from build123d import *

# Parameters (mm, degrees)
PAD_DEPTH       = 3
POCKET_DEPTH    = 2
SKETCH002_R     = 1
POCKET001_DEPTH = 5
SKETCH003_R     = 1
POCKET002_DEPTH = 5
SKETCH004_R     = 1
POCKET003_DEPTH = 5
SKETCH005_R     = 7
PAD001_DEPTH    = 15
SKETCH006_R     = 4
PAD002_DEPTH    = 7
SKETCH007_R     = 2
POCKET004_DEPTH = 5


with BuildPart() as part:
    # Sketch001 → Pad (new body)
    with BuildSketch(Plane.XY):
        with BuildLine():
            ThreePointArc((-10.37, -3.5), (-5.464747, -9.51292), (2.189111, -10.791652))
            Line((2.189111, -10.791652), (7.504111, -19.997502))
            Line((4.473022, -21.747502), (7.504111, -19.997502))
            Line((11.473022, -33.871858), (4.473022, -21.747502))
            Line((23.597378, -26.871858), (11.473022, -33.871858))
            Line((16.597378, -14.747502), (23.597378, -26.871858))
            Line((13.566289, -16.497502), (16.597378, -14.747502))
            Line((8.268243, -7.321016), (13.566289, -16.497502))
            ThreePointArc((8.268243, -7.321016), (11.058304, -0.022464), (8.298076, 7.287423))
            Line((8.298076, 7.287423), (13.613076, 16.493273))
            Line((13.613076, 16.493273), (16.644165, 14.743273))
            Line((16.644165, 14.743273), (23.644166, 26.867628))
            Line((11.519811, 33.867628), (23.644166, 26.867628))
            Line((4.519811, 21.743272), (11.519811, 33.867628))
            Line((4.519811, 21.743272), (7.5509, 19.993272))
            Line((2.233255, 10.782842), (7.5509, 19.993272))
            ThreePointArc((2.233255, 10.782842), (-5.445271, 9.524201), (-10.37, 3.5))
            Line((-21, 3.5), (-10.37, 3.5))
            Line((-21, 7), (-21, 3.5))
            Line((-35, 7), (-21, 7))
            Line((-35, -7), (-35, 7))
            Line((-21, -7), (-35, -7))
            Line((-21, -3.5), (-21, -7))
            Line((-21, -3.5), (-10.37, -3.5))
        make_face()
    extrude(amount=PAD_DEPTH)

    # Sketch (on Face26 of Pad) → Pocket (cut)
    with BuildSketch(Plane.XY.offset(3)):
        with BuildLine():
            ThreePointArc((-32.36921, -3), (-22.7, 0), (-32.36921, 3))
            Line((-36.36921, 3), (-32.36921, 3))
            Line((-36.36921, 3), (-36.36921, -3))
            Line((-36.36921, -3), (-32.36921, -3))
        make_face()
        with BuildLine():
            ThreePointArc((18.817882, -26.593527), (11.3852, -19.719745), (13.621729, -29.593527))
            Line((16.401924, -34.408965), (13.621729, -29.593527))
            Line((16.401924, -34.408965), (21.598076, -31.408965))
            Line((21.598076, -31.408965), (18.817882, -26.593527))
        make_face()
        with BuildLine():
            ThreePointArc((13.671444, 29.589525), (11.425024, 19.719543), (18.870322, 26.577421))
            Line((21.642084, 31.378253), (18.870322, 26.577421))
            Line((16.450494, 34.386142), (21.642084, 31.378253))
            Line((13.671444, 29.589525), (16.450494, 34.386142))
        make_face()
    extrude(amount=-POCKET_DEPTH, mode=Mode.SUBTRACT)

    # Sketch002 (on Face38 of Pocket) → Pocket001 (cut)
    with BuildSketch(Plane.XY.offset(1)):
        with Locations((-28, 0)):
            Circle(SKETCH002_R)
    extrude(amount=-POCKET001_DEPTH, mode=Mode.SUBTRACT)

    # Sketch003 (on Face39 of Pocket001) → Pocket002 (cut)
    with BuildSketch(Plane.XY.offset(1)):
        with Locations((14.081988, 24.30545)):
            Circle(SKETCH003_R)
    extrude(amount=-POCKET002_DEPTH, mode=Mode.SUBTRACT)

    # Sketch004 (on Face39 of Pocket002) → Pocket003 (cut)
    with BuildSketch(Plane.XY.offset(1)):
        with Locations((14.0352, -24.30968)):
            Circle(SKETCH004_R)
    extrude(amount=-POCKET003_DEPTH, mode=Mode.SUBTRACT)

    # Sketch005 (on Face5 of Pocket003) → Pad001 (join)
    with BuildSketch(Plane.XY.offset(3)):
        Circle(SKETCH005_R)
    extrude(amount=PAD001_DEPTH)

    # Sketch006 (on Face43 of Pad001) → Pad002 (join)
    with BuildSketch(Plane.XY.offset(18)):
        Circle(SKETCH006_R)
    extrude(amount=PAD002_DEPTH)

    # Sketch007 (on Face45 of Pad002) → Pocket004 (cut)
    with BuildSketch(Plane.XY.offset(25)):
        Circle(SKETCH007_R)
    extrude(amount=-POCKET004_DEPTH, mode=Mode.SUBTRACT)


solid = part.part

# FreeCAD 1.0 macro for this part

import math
import FreeCAD as App
import Part
import Sketcher
Q = App.Units.Quantity

doc = App.newDocument("Part")
body = doc.addObject("PartDesign::Body", "Body")

sketch1 = doc.addObject("Sketcher::SketchObject", "Sketch")
body.addObject(sketch1)
sketch1.AttachmentSupport = (doc.XY_Plane, [""])
sketch1.MapMode = "FlatFace"
sketch1.addGeometry(Part.ArcOfCircle(Part.Circle(App.Vector(0.1, 0, 0), App.Vector(0, 0, 1), 11), math.radians(-161), math.radians(-79)), False)
sketch1.addGeometry(Part.LineSegment(App.Vector(2.2, -10.8, 0), App.Vector(7.5, -20, 0)), False)
sketch1.addGeometry(Part.LineSegment(App.Vector(7.5, -20, 0), App.Vector(4.5, -21.7, 0)), False)
sketch1.addGeometry(Part.LineSegment(App.Vector(4.5, -21.7, 0), App.Vector(11.5, -33.9, 0)), False)
sketch1.addGeometry(Part.LineSegment(App.Vector(11.5, -33.9, 0), App.Vector(23.6, -26.9, 0)), False)
sketch1.addGeometry(Part.LineSegment(App.Vector(23.6, -26.9, 0), App.Vector(16.6, -14.7, 0)), False)
sketch1.addGeometry(Part.LineSegment(App.Vector(16.6, -14.7, 0), App.Vector(13.6, -16.5, 0)), False)
sketch1.addGeometry(Part.LineSegment(App.Vector(13.6, -16.5, 0), App.Vector(8.3, -7.3, 0)), False)
sketch1.addGeometry(Part.ArcOfCircle(Part.Circle(App.Vector(0.1, 0, 0), App.Vector(0, 0, 1), 11), math.radians(-42), math.radians(41)), False)
sketch1.addGeometry(Part.LineSegment(App.Vector(8.3, 7.3, 0), App.Vector(13.6, 16.5, 0)), False)
sketch1.addGeometry(Part.LineSegment(App.Vector(13.6, 16.5, 0), App.Vector(16.6, 14.7, 0)), False)
sketch1.addGeometry(Part.LineSegment(App.Vector(16.6, 14.7, 0), App.Vector(23.6, 26.9, 0)), False)
sketch1.addGeometry(Part.LineSegment(App.Vector(23.6, 26.9, 0), App.Vector(11.5, 33.9, 0)), False)
sketch1.addGeometry(Part.LineSegment(App.Vector(11.5, 33.9, 0), App.Vector(4.5, 21.7, 0)), False)
sketch1.addGeometry(Part.LineSegment(App.Vector(4.5, 21.7, 0), App.Vector(7.6, 20, 0)), False)
sketch1.addGeometry(Part.LineSegment(App.Vector(7.6, 20, 0), App.Vector(2.2, 10.8, 0)), False)
sketch1.addGeometry(Part.ArcOfCircle(Part.Circle(App.Vector(0.1, 0, 0), App.Vector(0, 0, 1), 11), math.radians(79), math.radians(161)), False)
sketch1.addGeometry(Part.LineSegment(App.Vector(-10.4, 3.5, 0), App.Vector(-21, 3.5, 0)), False)
sketch1.addGeometry(Part.LineSegment(App.Vector(-21, 3.5, 0), App.Vector(-21, 7, 0)), False)
sketch1.addGeometry(Part.LineSegment(App.Vector(-21, 7, 0), App.Vector(-35, 7, 0)), False)
sketch1.addGeometry(Part.LineSegment(App.Vector(-35, 7, 0), App.Vector(-35, -7, 0)), False)
sketch1.addGeometry(Part.LineSegment(App.Vector(-35, -7, 0), App.Vector(-21, -7, 0)), False)
sketch1.addGeometry(Part.LineSegment(App.Vector(-21, -7, 0), App.Vector(-21, -3.5, 0)), False)
sketch1.addGeometry(Part.LineSegment(App.Vector(-21, -3.5, 0), App.Vector(-10.4, -3.5, 0)), False)
sketch1.addConstraint(Sketcher.Constraint("Coincident", 0, 2, 1, 1))
sketch1.addConstraint(Sketcher.Constraint("Coincident", 1, 2, 2, 1))
sketch1.addConstraint(Sketcher.Constraint("Coincident", 2, 2, 3, 1))
sketch1.addConstraint(Sketcher.Constraint("Coincident", 3, 2, 4, 1))
sketch1.addConstraint(Sketcher.Constraint("Coincident", 4, 2, 5, 1))
sketch1.addConstraint(Sketcher.Constraint("Coincident", 5, 2, 6, 1))
sketch1.addConstraint(Sketcher.Constraint("Coincident", 6, 2, 7, 1))
sketch1.addConstraint(Sketcher.Constraint("Coincident", 7, 2, 8, 1))
sketch1.addConstraint(Sketcher.Constraint("Coincident", 8, 2, 9, 1))
sketch1.addConstraint(Sketcher.Constraint("Coincident", 9, 2, 10, 1))
sketch1.addConstraint(Sketcher.Constraint("Coincident", 10, 2, 11, 1))
sketch1.addConstraint(Sketcher.Constraint("Coincident", 11, 2, 12, 1))
sketch1.addConstraint(Sketcher.Constraint("Coincident", 12, 2, 13, 1))
sketch1.addConstraint(Sketcher.Constraint("Coincident", 13, 2, 14, 1))
sketch1.addConstraint(Sketcher.Constraint("Coincident", 14, 2, 15, 1))
sketch1.addConstraint(Sketcher.Constraint("Coincident", 15, 2, 16, 1))
sketch1.addConstraint(Sketcher.Constraint("Coincident", 16, 2, 17, 1))
sketch1.addConstraint(Sketcher.Constraint("Coincident", 17, 2, 18, 1))
sketch1.addConstraint(Sketcher.Constraint("Coincident", 18, 2, 19, 1))
sketch1.addConstraint(Sketcher.Constraint("Coincident", 19, 2, 20, 1))
sketch1.addConstraint(Sketcher.Constraint("Coincident", 20, 2, 21, 1))
sketch1.addConstraint(Sketcher.Constraint("Coincident", 21, 2, 22, 1))
sketch1.addConstraint(Sketcher.Constraint("Coincident", 22, 2, 23, 1))
sketch1.addConstraint(Sketcher.Constraint("Coincident", 23, 2, 0, 1))
sketch1.addConstraint(Sketcher.Constraint("Horizontal", 17))
sketch1.addConstraint(Sketcher.Constraint("Vertical", 18))
sketch1.addConstraint(Sketcher.Constraint("Horizontal", 19))
sketch1.addConstraint(Sketcher.Constraint("Vertical", 20))
sketch1.addConstraint(Sketcher.Constraint("Horizontal", 21))
sketch1.addConstraint(Sketcher.Constraint("Vertical", 22))
sketch1.addConstraint(Sketcher.Constraint("Horizontal", 23))
sketch1.addConstraint(Sketcher.Constraint("Coincident", 8, 3, 0, 3))
sketch1.addConstraint(Sketcher.Constraint("Coincident", 16, 3, 0, 3))
sketch1.addConstraint(Sketcher.Constraint("Equal", 0, 8))
sketch1.addConstraint(Sketcher.Constraint("Equal", 8, 16))
sketch1.addConstraint(Sketcher.Constraint("Symmetric", 18, 2, 21, 2, -1))
sketch1.addConstraint(Sketcher.Constraint("Symmetric", 16, 2, 23, 2, -1))
sketch1.addConstraint(Sketcher.Constraint("Perpendicular", 1, 2))
sketch1.addConstraint(Sketcher.Constraint("Perpendicular", 2, 3))
sketch1.addConstraint(Sketcher.Constraint("Perpendicular", 3, 4))
sketch1.addConstraint(Sketcher.Constraint("Perpendicular", 4, 5))
sketch1.addConstraint(Sketcher.Constraint("Perpendicular", 5, 6))
sketch1.addConstraint(Sketcher.Constraint("Perpendicular", 6, 7))
sketch1.addConstraint(Sketcher.Constraint("Perpendicular", 9, 10))
sketch1.addConstraint(Sketcher.Constraint("Perpendicular", 10, 11))
sketch1.addConstraint(Sketcher.Constraint("Perpendicular", 11, 12))
sketch1.addConstraint(Sketcher.Constraint("Perpendicular", 12, 13))
sketch1.addConstraint(Sketcher.Constraint("Perpendicular", 13, 14))
sketch1.addConstraint(Sketcher.Constraint("Perpendicular", 14, 15))
sketch1.addConstraint(Sketcher.Constraint("Equal", 21, 20))
sketch1.addConstraint(Sketcher.Constraint("Equal", 3, 4))
sketch1.addConstraint(Sketcher.Constraint("Equal", 4, 5))
sketch1.addConstraint(Sketcher.Constraint("Equal", 2, 6))
sketch1.addConstraint(Sketcher.Constraint("Equal", 1, 9))
sketch1.addConstraint(Sketcher.Constraint("Equal", 6, 10))
sketch1.addConstraint(Sketcher.Constraint("Equal", 5, 11))
sketch1.addConstraint(Sketcher.Constraint("Equal", 11, 12))
sketch1.addConstraint(Sketcher.Constraint("Equal", 12, 13))
sketch1.addConstraint(Sketcher.Constraint("Equal", 10, 14))
sketch1.addConstraint(Sketcher.Constraint("Radius", 0, Q("11.000001 mm")))
sketch1.addConstraint(Sketcher.Constraint("DistanceX", 19, 2, 19, 1, Q("14 mm")))
sketch1.addConstraint(Sketcher.Constraint("Angle", 1, Q("-60 deg")))
sketch1.addConstraint(Sketcher.Constraint("Angle", 9, Q("60 deg")))
sketch1.addConstraint(Sketcher.Constraint("Distance", 3, Q("14 mm")))
sketch1.addConstraint(Sketcher.Constraint("DistanceY", 18, 1, 18, 2, Q("3.5 mm")))
sketch1.addConstraint(Sketcher.Constraint("DistanceX", 17, 2, -1, 1, Q("21 mm")))
sketch1.addConstraint(Sketcher.Constraint("Distance", 2, Q("3.5 mm")))
sketch1.addConstraint(Sketcher.Constraint("DistanceX", 17, 2, 17, 1, Q("10.63 mm")))
sketch1.addConstraint(Sketcher.Constraint("Distance", 1, Q("10.63 mm")))
sketch1.addConstraint(Sketcher.Constraint("DistanceX", -1, 1, 14, 2, Q("7.5509 mm")))
sketch1.addConstraint(Sketcher.Constraint("DistanceY", 1, 2, 16, 3, Q("19.997501 mm")))
pad1 = doc.addObject("PartDesign::Pad", "Pad")
body.addObject(pad1)
pad1.Profile = sketch1
pad1.Length = 3

sketch2 = doc.addObject("Sketcher::SketchObject", "Sketch001")
body.addObject(sketch2)
sketch2.AttachmentSupport = (doc.XY_Plane, [""])
sketch2.MapMode = "FlatFace"
sketch2.AttachmentOffset = App.Placement(App.Vector(0, 0, 3), App.Rotation())
sketch2.addGeometry(Part.ArcOfCircle(Part.Circle(App.Vector(-28, 0, 0), App.Vector(0, 0, 1), 5.3), math.radians(-146), math.radians(146)), False)
sketch2.addGeometry(Part.LineSegment(App.Vector(-32.4, 3, 0), App.Vector(-36.4, 3, 0)), False)
sketch2.addGeometry(Part.LineSegment(App.Vector(-36.4, 3, 0), App.Vector(-36.4, -3, 0)), False)
sketch2.addGeometry(Part.LineSegment(App.Vector(-36.4, -3, 0), App.Vector(-32.4, -3, 0)), False)
sketch2.addGeometry(Part.ArcOfCircle(Part.Circle(App.Vector(14, -24.3, 0), App.Vector(0, 0, 1), 5.3), math.radians(-26), math.radians(266)), False)
sketch2.addGeometry(Part.LineSegment(App.Vector(13.6, -29.6, 0), App.Vector(16.4, -34.4, 0)), False)
sketch2.addGeometry(Part.LineSegment(App.Vector(16.4, -34.4, 0), App.Vector(21.6, -31.4, 0)), False)
sketch2.addGeometry(Part.LineSegment(App.Vector(21.6, -31.4, 0), App.Vector(18.8, -26.6, 0)), False)
sketch2.addGeometry(Part.ArcOfCircle(Part.Circle(App.Vector(14.1, 24.3, 0), App.Vector(0, 0, 1), 5.3), math.radians(94), math.radians(385)), False)
sketch2.addGeometry(Part.LineSegment(App.Vector(18.9, 26.6, 0), App.Vector(21.6, 31.4, 0)), False)
sketch2.addGeometry(Part.LineSegment(App.Vector(21.6, 31.4, 0), App.Vector(16.5, 34.4, 0)), False)
sketch2.addGeometry(Part.LineSegment(App.Vector(16.5, 34.4, 0), App.Vector(13.7, 29.6, 0)), False)
sketch2.addConstraint(Sketcher.Constraint("Coincident", 0, 2, 1, 1))
sketch2.addConstraint(Sketcher.Constraint("Coincident", 1, 2, 2, 1))
sketch2.addConstraint(Sketcher.Constraint("Coincident", 2, 2, 3, 1))
sketch2.addConstraint(Sketcher.Constraint("Coincident", 3, 2, 0, 1))
sketch2.addConstraint(Sketcher.Constraint("Coincident", 4, 2, 5, 1))
sketch2.addConstraint(Sketcher.Constraint("Coincident", 5, 2, 6, 1))
sketch2.addConstraint(Sketcher.Constraint("Coincident", 6, 2, 7, 1))
sketch2.addConstraint(Sketcher.Constraint("Coincident", 7, 2, 4, 1))
sketch2.addConstraint(Sketcher.Constraint("Coincident", 8, 2, 9, 1))
sketch2.addConstraint(Sketcher.Constraint("Coincident", 9, 2, 10, 1))
sketch2.addConstraint(Sketcher.Constraint("Coincident", 10, 2, 11, 1))
sketch2.addConstraint(Sketcher.Constraint("Coincident", 11, 2, 8, 1))
sketch2.addConstraint(Sketcher.Constraint("Horizontal", 1))
sketch2.addConstraint(Sketcher.Constraint("Vertical", 2))
sketch2.addConstraint(Sketcher.Constraint("Horizontal", 3))
sketch2.addConstraint(Sketcher.Constraint("Equal", 0, 4))
sketch2.addConstraint(Sketcher.Constraint("Equal", 4, 8))
sketch2.addConstraint(Sketcher.Constraint("Symmetric", 0, 2, 3, 2, -1))
sketch2.addConstraint(Sketcher.Constraint("Perpendicular", 5, 6))
sketch2.addConstraint(Sketcher.Constraint("Perpendicular", 6, 7))
sketch2.addConstraint(Sketcher.Constraint("Perpendicular", 10, 11))
sketch2.addConstraint(Sketcher.Constraint("Equal", 5, 7))
sketch2.addConstraint(Sketcher.Constraint("Equal", 6, 10))
sketch2.addConstraint(Sketcher.Constraint("Equal", 9, 11))
sketch2.addConstraint(Sketcher.Constraint("Radius", 0, Q("5.3 mm")))
sketch2.addConstraint(Sketcher.Constraint("DistanceX", 1, 2, 1, 1, Q("4 mm")))
sketch2.addConstraint(Sketcher.Constraint("DistanceY", 2, 2, 2, 1, Q("6 mm")))
sketch2.addConstraint(Sketcher.Constraint("Angle", 5, Q("-59.999995 deg")))
sketch2.addConstraint(Sketcher.Constraint("Angle", 9, Q("59.999997 deg")))
sketch2.addConstraint(Sketcher.Constraint("Distance", 6, Q("6 mm")))
sketch2.addConstraint(Sketcher.Constraint("DistanceX", 0, 3, -1, 1, Q("28 mm")))
sketch2.addConstraint(Sketcher.Constraint("DistanceX", -1, 1, 4, 3, Q("14.0352 mm")))
sketch2.addConstraint(Sketcher.Constraint("DistanceY", 4, 3, 8, 2, Q("50.887101 mm")))
sketch2.addConstraint(Sketcher.Constraint("DistanceX", 7, 2, 9, 2, Q("2.824202 mm")))
sketch2.addConstraint(Sketcher.Constraint("Distance", 5, Q("5.560389 mm")))
sketch2.addConstraint(Sketcher.Constraint("DistanceY", 4, 3, -1, 1, Q("24.30968 mm")))
sketch2.addConstraint(Sketcher.Constraint("DistanceY", -1, 1, 8, 3, Q("24.30545 mm")))
sketch2.addConstraint(Sketcher.Constraint("DistanceX", -1, 1, 8, 2, Q("18.870322 mm")))
pocket1 = doc.addObject("PartDesign::Pocket", "Pocket")
body.addObject(pocket1)
pocket1.Profile = sketch2
pocket1.Length = 2

sketch3 = doc.addObject("Sketcher::SketchObject", "Sketch002")
body.addObject(sketch3)
sketch3.AttachmentSupport = (doc.XY_Plane, [""])
sketch3.MapMode = "FlatFace"
sketch3.AttachmentOffset = App.Placement(App.Vector(0, 0, 1), App.Rotation())
sketch3.addGeometry(Part.Circle(App.Vector(-28, 0, 0), App.Vector(0, 0, 1), 1), False)
sketch3.addConstraint(Sketcher.Constraint("PointOnObject", 0, 3, -1))
sketch3.addConstraint(Sketcher.Constraint("Diameter", 0, Q("2 mm")))
sketch3.addConstraint(Sketcher.Constraint("DistanceX", 0, 3, -1, 1, Q("28 mm")))
pocket2 = doc.addObject("PartDesign::Pocket", "Pocket001")
body.addObject(pocket2)
pocket2.Profile = sketch3
pocket2.Length = 5

sketch4 = doc.addObject("Sketcher::SketchObject", "Sketch003")
body.addObject(sketch4)
sketch4.AttachmentSupport = (doc.XY_Plane, [""])
sketch4.MapMode = "FlatFace"
sketch4.AttachmentOffset = App.Placement(App.Vector(0, 0, 1), App.Rotation())
sketch4.addGeometry(Part.Circle(App.Vector(14.1, 24.3, 0), App.Vector(0, 0, 1), 1), False)
sketch4.addConstraint(Sketcher.Constraint("Diameter", 0, Q("2 mm")))
sketch4.addConstraint(Sketcher.Constraint("DistanceX", -1, 1, 0, 3, Q("14.081988 mm")))
sketch4.addConstraint(Sketcher.Constraint("DistanceY", -1, 1, 0, 3, Q("24.30545 mm")))
pocket3 = doc.addObject("PartDesign::Pocket", "Pocket002")
body.addObject(pocket3)
pocket3.Profile = sketch4
pocket3.Length = 5

sketch5 = doc.addObject("Sketcher::SketchObject", "Sketch004")
body.addObject(sketch5)
sketch5.AttachmentSupport = (doc.XY_Plane, [""])
sketch5.MapMode = "FlatFace"
sketch5.AttachmentOffset = App.Placement(App.Vector(0, 0, 1), App.Rotation())
sketch5.addGeometry(Part.Circle(App.Vector(14, -24.3, 0), App.Vector(0, 0, 1), 1), False)
sketch5.addConstraint(Sketcher.Constraint("Diameter", 0, Q("2 mm")))
sketch5.addConstraint(Sketcher.Constraint("DistanceX", -1, 1, 0, 3, Q("14.0352 mm")))
sketch5.addConstraint(Sketcher.Constraint("DistanceY", 0, 3, -1, 1, Q("24.30968 mm")))
pocket4 = doc.addObject("PartDesign::Pocket", "Pocket003")
body.addObject(pocket4)
pocket4.Profile = sketch5
pocket4.Length = 5

sketch6 = doc.addObject("Sketcher::SketchObject", "Sketch005")
body.addObject(sketch6)
sketch6.AttachmentSupport = (doc.XY_Plane, [""])
sketch6.MapMode = "FlatFace"
sketch6.AttachmentOffset = App.Placement(App.Vector(0, 0, 3), App.Rotation())
sketch6.addGeometry(Part.Circle(App.Vector(0, 0, 0), App.Vector(0, 0, 1), 7), False)
sketch6.addConstraint(Sketcher.Constraint("Coincident", 0, 3, -1, 1))
sketch6.addConstraint(Sketcher.Constraint("Diameter", 0, Q("14 mm")))
pad2 = doc.addObject("PartDesign::Pad", "Pad001")
body.addObject(pad2)
pad2.Profile = sketch6
pad2.Length = 15

sketch7 = doc.addObject("Sketcher::SketchObject", "Sketch006")
body.addObject(sketch7)
sketch7.AttachmentSupport = (doc.XY_Plane, [""])
sketch7.MapMode = "FlatFace"
sketch7.AttachmentOffset = App.Placement(App.Vector(0, 0, 18), App.Rotation())
sketch7.addGeometry(Part.Circle(App.Vector(0, 0, 0), App.Vector(0, 0, 1), 4), False)
sketch7.addConstraint(Sketcher.Constraint("Coincident", 0, 3, -1, 1))
sketch7.addConstraint(Sketcher.Constraint("Diameter", 0, Q("8 mm")))
pad3 = doc.addObject("PartDesign::Pad", "Pad002")
body.addObject(pad3)
pad3.Profile = sketch7
pad3.Length = 7

sketch8 = doc.addObject("Sketcher::SketchObject", "Sketch007")
body.addObject(sketch8)
sketch8.AttachmentSupport = (doc.XY_Plane, [""])
sketch8.MapMode = "FlatFace"
sketch8.AttachmentOffset = App.Placement(App.Vector(0, 0, 25), App.Rotation())
sketch8.addGeometry(Part.Circle(App.Vector(0, 0, 0), App.Vector(0, 0, 1), 2), False)
sketch8.addConstraint(Sketcher.Constraint("Coincident", 0, 3, -1, 1))
sketch8.addConstraint(Sketcher.Constraint("Diameter", 0, Q("4 mm")))
pocket5 = doc.addObject("PartDesign::Pocket", "Pocket004")
body.addObject(pocket5)
pocket5.Profile = sketch8
pocket5.Length = 5

doc.recompute()
